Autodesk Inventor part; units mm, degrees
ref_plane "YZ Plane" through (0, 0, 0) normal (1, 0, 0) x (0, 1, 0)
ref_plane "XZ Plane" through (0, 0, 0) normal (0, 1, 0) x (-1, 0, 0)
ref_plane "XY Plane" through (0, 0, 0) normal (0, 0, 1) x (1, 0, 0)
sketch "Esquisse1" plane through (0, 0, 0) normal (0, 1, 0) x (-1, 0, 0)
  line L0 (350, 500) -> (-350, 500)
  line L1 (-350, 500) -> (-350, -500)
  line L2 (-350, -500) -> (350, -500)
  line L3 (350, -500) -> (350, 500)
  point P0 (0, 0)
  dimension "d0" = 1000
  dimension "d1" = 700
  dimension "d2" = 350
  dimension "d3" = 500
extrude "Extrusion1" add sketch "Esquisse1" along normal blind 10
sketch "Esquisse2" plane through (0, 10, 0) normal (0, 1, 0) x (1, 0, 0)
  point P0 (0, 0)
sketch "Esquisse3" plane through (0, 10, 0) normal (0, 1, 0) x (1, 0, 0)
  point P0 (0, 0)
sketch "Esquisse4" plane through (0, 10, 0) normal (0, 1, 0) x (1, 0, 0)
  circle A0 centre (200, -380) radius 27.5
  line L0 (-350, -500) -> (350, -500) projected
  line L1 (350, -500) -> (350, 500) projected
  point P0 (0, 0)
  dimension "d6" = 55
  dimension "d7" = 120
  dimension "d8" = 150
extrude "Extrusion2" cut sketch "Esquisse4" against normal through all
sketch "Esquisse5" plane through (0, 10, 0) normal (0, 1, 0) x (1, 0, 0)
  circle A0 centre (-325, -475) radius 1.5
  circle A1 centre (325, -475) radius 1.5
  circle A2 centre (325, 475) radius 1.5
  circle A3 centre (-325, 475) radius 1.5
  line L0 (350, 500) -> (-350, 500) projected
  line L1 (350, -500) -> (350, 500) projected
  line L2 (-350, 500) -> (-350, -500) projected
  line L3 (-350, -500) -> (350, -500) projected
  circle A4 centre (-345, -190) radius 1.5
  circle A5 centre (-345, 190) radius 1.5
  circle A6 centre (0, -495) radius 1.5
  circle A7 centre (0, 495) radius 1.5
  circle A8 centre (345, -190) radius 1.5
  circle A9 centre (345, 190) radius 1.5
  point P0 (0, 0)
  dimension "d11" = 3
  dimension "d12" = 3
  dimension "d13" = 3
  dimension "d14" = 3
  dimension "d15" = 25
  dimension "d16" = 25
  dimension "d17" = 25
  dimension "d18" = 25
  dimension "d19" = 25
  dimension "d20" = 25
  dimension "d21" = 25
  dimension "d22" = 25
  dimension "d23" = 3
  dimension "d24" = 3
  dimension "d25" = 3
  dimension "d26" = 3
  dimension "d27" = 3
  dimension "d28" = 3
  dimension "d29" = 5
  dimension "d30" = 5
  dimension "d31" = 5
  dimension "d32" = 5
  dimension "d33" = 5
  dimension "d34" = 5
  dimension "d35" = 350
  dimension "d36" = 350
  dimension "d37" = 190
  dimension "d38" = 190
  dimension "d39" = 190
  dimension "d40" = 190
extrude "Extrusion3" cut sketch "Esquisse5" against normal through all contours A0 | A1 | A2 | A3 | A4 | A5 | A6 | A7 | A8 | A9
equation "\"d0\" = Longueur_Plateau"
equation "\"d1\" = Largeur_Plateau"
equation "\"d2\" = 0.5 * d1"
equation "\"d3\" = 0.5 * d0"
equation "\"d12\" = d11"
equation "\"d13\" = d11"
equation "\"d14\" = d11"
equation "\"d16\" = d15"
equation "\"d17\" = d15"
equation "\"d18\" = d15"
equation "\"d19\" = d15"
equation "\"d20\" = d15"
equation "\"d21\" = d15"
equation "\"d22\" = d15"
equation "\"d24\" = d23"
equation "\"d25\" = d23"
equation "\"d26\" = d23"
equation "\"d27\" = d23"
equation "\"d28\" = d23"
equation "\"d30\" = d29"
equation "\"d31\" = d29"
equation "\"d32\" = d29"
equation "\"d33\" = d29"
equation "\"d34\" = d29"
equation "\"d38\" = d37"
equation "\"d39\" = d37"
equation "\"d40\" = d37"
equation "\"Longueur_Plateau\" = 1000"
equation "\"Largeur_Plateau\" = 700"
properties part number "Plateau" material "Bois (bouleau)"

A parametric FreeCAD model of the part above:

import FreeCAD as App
import Part
import Sketcher

doc = App.newDocument("Part")
params = doc.addObject("Spreadsheet::Sheet", "Params")
for row, (alias, value) in enumerate([
    ("sketch1_width", "700 mm"),
    ("sketch1_height", "1000 mm"),
    ("pad1_length", "10 mm"),
    ("sketch2_diameter", "55 mm"),
    ("sketch3_diameter", "3 mm"),
], start=1):
    params.set(f"A{row}", alias)
    params.set(f"B{row}", "=" + value)
    params.setAlias(f"B{row}", alias)

body = doc.addObject("PartDesign::Body", "Body")

sketch1 = body.newObject("Sketcher::SketchObject", "Sketch")
sketch1.AttachmentSupport = (doc.getObject("XZ_Plane"), [""])
sketch1.MapMode = "FlatFace"
sketch1.addGeometry([
    Part.LineSegment(App.Vector(-350, -500, 0), App.Vector(-350, 500, 0)),
    Part.LineSegment(App.Vector(-350, 500, 0), App.Vector(350, 500, 0)),
    Part.LineSegment(App.Vector(350, 500, 0), App.Vector(350, -500, 0)),
    Part.LineSegment(App.Vector(350, -500, 0), App.Vector(-350, -500, 0)),
], False)
sketch1.addConstraint([
    Sketcher.Constraint("Coincident", 0, 2, 1, 1),
    Sketcher.Constraint("Coincident", 1, 2, 2, 1),
    Sketcher.Constraint("Coincident", 2, 2, 3, 1),
    Sketcher.Constraint("Coincident", 3, 2, 0, 1),
    Sketcher.Constraint("Vertical", 0),
    Sketcher.Constraint("Horizontal", 1),
    Sketcher.Constraint("Vertical", 2),
    Sketcher.Constraint("Horizontal", 3),
    Sketcher.Constraint("Symmetric", 0, 2, 2, 2, -1, 1),
    Sketcher.Constraint("DistanceX", 1, 1, 1, 2, 700.0),
    Sketcher.Constraint("DistanceY", 0, 1, 0, 2, 1000.0),
])
sketch1.setExpression("Constraints[9]", "Params.sketch1_width")
sketch1.setExpression("Constraints[10]", "Params.sketch1_height")
pad1 = body.newObject("PartDesign::Pad", "Pad")
pad1.Profile = sketch1
pad1.setExpression("Length", "Params.pad1_length")
pad1.Reversed = True

sketch2 = body.newObject("Sketcher::SketchObject", "Sketch001")
sketch2.AttachmentSupport = (doc.getObject("XZ_Plane"), [""])
sketch2.MapMode = "FlatFace"
sketch2.AttachmentOffset = App.Placement(App.Vector(0, 0, -10), App.Rotation())
sketch2.addGeometry(Part.Circle(App.Vector(200, 380, 0), App.Vector(0, 0, 1), 28), False)
sketch2.addConstraint([
    Sketcher.Constraint("Diameter", 0, 55.0),
    Sketcher.Constraint("DistanceX", -1, 1, 0, 3, 200.0),
    Sketcher.Constraint("DistanceY", -1, 1, 0, 3, 380.0),
])
sketch2.setExpression("Constraints[0]", "Params.sketch2_diameter")
pocket1 = body.newObject("PartDesign::Pocket", "Pocket")
pocket1.Profile = sketch2
pocket1.Type = "ThroughAll"
pocket1.Reversed = True

sketch3 = body.newObject("Sketcher::SketchObject", "Sketch002")
sketch3.AttachmentSupport = (doc.getObject("XZ_Plane"), [""])
sketch3.MapMode = "FlatFace"
sketch3.AttachmentOffset = App.Placement(App.Vector(0, 0, -10), App.Rotation())
sketch3.addGeometry([
    Part.Circle(App.Vector(-325, 475, 0), App.Vector(0, 0, 1), 1.5),
    Part.Circle(App.Vector(325, 475, 0), App.Vector(0, 0, 1), 1.5),
    Part.Circle(App.Vector(325, -475, 0), App.Vector(0, 0, 1), 1.5),
    Part.Circle(App.Vector(-325, -475, 0), App.Vector(0, 0, 1), 1.5),
    Part.Circle(App.Vector(-345, 190, 0), App.Vector(0, 0, 1), 1.5),
    Part.Circle(App.Vector(-345, -190, 0), App.Vector(0, 0, 1), 1.5),
    Part.Circle(App.Vector(0, 495, 0), App.Vector(0, 0, 1), 1.5),
    Part.Circle(App.Vector(0, -495, 0), App.Vector(0, 0, 1), 1.5),
    Part.Circle(App.Vector(345, 190, 0), App.Vector(0, 0, 1), 1.5),
    Part.Circle(App.Vector(345, -190, 0), App.Vector(0, 0, 1), 1.5),
], False)
sketch3.addConstraint([
    Sketcher.Constraint("Equal", 0, 1),
    Sketcher.Constraint("Equal", 1, 2),
    Sketcher.Constraint("Equal", 2, 3),
    Sketcher.Constraint("Equal", 3, 4),
    Sketcher.Constraint("Equal", 4, 5),
    Sketcher.Constraint("Equal", 5, 6),
    Sketcher.Constraint("Equal", 6, 7),
    Sketcher.Constraint("Equal", 7, 8),
    Sketcher.Constraint("Equal", 8, 9),
    Sketcher.Constraint("Symmetric", 0, 3, 2, 3, -1, 1),
    Sketcher.Constraint("Symmetric", 1, 3, 3, 3, -1, 1),
    Sketcher.Constraint("Symmetric", 6, 3, 7, 3, -1, 1),
    Sketcher.Constraint("Symmetric", 5, 3, 8, 3, -1, 1),
    Sketcher.Constraint("Symmetric", 4, 3, 9, 3, -1, 1),
    Sketcher.Constraint("Symmetric", 0, 3, 1, 3, -2),
    Sketcher.Constraint("Symmetric", 4, 3, 8, 3, -2),
    Sketcher.Constraint("PointOnObject", 6, 3, -2),
    Sketcher.Constraint("Diameter", 0, 3.0),
    Sketcher.Constraint("DistanceY", -1, 1, 4, 3, 190.0),
    Sketcher.Constraint("DistanceX", 0, 3, -1, 1, 325.0),
    Sketcher.Constraint("DistanceY", -1, 1, 0, 3, 475.0),
    Sketcher.Constraint("DistanceX", 4, 3, -1, 1, 345.0),
    Sketcher.Constraint("DistanceY", -1, 1, 6, 3, 495.0),
])
sketch3.setExpression("Constraints[17]", "Params.sketch3_diameter")
pocket2 = body.newObject("PartDesign::Pocket", "Pocket001")
pocket2.Profile = sketch3
pocket2.Type = "ThroughAll"
pocket2.Reversed = True

doc.recompute()
